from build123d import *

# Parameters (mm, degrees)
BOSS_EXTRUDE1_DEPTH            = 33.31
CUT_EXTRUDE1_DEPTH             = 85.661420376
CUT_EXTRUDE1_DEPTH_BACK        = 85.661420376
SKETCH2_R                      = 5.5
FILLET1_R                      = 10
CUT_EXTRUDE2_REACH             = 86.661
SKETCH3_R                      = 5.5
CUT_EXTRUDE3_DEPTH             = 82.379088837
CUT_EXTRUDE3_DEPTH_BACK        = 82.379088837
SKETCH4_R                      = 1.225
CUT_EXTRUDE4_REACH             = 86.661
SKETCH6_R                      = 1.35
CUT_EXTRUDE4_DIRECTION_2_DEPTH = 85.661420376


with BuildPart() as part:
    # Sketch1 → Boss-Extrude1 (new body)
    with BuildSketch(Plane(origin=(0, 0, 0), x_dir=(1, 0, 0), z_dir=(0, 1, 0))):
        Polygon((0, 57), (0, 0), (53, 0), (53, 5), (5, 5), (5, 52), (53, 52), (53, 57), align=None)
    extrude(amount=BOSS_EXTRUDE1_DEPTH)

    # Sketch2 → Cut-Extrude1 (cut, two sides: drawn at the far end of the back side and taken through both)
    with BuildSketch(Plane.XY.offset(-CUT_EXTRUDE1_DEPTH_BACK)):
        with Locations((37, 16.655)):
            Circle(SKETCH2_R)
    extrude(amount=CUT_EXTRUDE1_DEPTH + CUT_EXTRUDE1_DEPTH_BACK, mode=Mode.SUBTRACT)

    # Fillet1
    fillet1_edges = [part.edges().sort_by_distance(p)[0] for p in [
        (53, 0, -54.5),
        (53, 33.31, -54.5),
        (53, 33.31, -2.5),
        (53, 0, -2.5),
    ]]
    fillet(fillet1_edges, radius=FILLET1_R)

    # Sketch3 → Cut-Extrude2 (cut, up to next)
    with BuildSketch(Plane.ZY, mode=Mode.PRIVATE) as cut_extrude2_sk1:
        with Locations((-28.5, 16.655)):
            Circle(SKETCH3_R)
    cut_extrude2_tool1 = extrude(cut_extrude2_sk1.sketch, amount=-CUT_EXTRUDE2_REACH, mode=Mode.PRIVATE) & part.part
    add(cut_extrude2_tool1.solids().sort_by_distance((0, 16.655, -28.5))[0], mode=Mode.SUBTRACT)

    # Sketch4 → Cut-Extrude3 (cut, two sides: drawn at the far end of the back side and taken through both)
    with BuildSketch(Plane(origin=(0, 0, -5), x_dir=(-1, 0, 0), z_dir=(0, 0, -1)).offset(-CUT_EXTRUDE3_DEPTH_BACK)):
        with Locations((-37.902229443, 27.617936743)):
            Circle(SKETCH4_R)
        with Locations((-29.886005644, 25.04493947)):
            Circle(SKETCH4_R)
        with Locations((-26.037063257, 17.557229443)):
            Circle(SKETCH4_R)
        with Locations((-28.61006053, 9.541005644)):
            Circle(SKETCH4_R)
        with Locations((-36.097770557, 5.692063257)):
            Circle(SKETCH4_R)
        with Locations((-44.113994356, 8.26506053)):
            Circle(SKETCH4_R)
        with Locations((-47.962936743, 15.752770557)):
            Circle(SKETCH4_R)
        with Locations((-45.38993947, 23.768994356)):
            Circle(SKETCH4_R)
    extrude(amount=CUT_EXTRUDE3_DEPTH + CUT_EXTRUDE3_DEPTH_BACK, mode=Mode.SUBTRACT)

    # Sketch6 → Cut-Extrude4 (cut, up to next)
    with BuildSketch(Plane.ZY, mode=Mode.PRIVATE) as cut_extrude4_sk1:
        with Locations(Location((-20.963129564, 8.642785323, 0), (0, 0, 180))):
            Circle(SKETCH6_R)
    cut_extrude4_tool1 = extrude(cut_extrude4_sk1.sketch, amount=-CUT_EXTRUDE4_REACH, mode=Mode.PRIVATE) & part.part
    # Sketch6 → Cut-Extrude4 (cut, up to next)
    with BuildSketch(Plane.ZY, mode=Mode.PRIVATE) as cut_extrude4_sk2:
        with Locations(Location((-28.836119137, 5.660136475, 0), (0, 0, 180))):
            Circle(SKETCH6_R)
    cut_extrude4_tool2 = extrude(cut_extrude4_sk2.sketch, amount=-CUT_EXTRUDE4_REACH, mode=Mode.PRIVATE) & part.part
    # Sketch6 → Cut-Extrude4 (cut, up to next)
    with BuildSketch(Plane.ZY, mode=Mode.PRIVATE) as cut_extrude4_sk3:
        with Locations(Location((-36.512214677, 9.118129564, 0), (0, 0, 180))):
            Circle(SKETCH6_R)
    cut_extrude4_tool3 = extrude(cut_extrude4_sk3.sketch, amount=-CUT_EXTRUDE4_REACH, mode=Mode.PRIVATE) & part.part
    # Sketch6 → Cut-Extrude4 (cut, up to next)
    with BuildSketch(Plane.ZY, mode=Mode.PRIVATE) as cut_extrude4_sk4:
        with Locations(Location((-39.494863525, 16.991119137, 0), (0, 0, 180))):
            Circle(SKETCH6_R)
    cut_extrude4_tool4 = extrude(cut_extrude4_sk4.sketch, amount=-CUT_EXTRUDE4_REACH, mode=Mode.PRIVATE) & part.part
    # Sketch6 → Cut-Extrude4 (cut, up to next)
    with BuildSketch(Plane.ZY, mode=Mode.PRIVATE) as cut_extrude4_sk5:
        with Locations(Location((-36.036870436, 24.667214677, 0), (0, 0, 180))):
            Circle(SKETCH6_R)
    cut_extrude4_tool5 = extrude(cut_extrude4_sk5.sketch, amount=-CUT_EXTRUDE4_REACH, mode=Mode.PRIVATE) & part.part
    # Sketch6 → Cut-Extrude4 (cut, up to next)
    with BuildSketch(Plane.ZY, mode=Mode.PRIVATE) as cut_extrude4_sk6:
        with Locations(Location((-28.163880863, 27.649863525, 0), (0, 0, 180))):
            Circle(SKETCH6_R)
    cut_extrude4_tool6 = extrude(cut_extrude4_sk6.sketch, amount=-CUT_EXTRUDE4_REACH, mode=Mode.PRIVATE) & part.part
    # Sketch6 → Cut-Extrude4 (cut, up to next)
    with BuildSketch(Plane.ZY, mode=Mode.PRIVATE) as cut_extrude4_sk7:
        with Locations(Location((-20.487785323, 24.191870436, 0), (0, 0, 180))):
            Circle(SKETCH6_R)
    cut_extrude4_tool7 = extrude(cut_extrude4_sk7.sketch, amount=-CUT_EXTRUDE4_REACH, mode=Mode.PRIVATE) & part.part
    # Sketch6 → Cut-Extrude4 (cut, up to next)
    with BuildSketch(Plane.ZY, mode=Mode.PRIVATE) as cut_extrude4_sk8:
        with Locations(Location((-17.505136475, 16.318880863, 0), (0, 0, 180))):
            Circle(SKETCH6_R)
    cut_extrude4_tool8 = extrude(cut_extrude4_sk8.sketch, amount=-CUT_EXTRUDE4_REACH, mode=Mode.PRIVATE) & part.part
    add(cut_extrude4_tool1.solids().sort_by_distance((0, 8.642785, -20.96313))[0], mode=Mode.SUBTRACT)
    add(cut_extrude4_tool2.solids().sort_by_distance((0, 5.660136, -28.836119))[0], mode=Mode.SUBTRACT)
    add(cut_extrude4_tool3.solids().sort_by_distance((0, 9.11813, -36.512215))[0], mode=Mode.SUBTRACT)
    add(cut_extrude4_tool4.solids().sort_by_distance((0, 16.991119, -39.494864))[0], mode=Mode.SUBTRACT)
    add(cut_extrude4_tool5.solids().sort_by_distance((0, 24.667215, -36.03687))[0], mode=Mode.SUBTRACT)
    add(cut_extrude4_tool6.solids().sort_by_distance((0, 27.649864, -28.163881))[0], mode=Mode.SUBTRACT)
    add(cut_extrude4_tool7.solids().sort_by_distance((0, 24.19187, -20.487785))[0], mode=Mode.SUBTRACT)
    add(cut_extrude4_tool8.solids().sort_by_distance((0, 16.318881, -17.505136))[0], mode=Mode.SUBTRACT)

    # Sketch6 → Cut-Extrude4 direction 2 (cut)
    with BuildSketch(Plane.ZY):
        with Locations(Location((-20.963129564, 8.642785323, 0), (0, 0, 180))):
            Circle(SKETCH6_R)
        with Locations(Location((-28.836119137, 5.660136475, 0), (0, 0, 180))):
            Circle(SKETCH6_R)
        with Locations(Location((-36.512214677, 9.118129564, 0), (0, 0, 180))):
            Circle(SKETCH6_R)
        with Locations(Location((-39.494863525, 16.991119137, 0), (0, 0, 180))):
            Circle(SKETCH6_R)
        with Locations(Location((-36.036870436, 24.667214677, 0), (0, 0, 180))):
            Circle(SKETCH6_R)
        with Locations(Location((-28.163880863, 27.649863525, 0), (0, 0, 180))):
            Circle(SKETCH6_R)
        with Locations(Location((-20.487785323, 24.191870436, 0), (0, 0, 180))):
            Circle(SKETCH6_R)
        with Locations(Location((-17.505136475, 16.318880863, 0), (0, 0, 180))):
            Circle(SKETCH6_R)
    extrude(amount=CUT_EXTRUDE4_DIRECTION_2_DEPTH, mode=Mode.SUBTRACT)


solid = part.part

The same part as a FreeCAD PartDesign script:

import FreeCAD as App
import Part
import Sketcher

V = App.Vector


def edges_at(feature, points):
    """Names of the edges that pass closest to the given points."""
    edges = feature.Shape.Edges
    near = lambda p: min(range(len(edges)), key=lambda i: edges[i].distToShape(Part.Vertex(*p))[0])
    return sorted({f"Edge{near(p) + 1}" for p in points})

doc = App.newDocument("Part")
body = doc.addObject("PartDesign::Body", "Body")

sketch1 = body.newObject("Sketcher::SketchObject", "Sketch")
sketch1.AttachmentSupport = (doc.getObject("XZ_Plane"), [""])
sketch1.MapMode = "FlatFace"
sketch1.addGeometry([
    Part.LineSegment(V(0, -57, 0), V(0, 0, 0)),
    Part.LineSegment(V(0, 0, 0), V(53, 0, 0)),
    Part.LineSegment(V(53, 0, 0), V(53, -5, 0)),
    Part.LineSegment(V(53, -5, 0), V(5, -5, 0)),
    Part.LineSegment(V(5, -5, 0), V(5, -52, 0)),
    Part.LineSegment(V(5, -52, 0), V(53, -52, 0)),
    Part.LineSegment(V(53, -52, 0), V(53, -57, 0)),
    Part.LineSegment(V(53, -57, 0), V(0, -57, 0)),
], False)
sketch1.addConstraint([
    Sketcher.Constraint("Coincident", 0, 2, 1, 1),
    Sketcher.Constraint("Coincident", 1, 2, 2, 1),
    Sketcher.Constraint("Coincident", 2, 2, 3, 1),
    Sketcher.Constraint("Coincident", 3, 2, 4, 1),
    Sketcher.Constraint("Coincident", 4, 2, 5, 1),
    Sketcher.Constraint("Coincident", 5, 2, 6, 1),
    Sketcher.Constraint("Coincident", 6, 2, 7, 1),
    Sketcher.Constraint("Coincident", 7, 2, 0, 1),
    Sketcher.Constraint("Vertical", 0),
    Sketcher.Constraint("Horizontal", 1),
    Sketcher.Constraint("Vertical", 2),
    Sketcher.Constraint("Horizontal", 3),
    Sketcher.Constraint("Vertical", 4),
    Sketcher.Constraint("Horizontal", 5),
    Sketcher.Constraint("Vertical", 6),
    Sketcher.Constraint("Horizontal", 7),
    Sketcher.Constraint("Coincident", 0, 2, -1, 1),
    Sketcher.Constraint("Vertical", 2, 2, 5, 2),
    Sketcher.Constraint("Equal", 2, 6),
    Sketcher.Constraint("DistanceX", 1, 1, 1, 2, 53.0),
    Sketcher.Constraint("DistanceX", 3, 2, 3, 1, 48.0),
    Sketcher.Constraint("DistanceY", 0, 1, 0, 2, 57.0),
    Sketcher.Constraint("DistanceY", 2, 2, 2, 1, 5.0),
])
pad1 = body.newObject("PartDesign::Pad", "Pad")
pad1.Profile = sketch1
pad1.Length = 33.31
pad1.Reversed = True

sketch2 = body.newObject("Sketcher::SketchObject", "Sketch001")
sketch2.AttachmentSupport = (doc.getObject("XY_Plane"), [""])
sketch2.MapMode = "FlatFace"
sketch2.addGeometry(Part.Circle(V(37, 16.655, 0), V(0, 0, 1), 5.5), False)
sketch2.addConstraint([
    Sketcher.Constraint("Diameter", 0, 11.0),
    Sketcher.Constraint("DistanceX", -1, 1, 0, 3, 37.0),
    Sketcher.Constraint("DistanceY", -1, 1, 0, 3, 16.655),
])
pocket1 = body.newObject("PartDesign::Pocket", "Pocket")
pocket1.Profile = sketch2
pocket1.Type = "ThroughAll"
pocket1.Midplane = True
doc.recompute()

fillet = body.newObject("PartDesign::Fillet", "Fillet")
fillet.Base = (pocket1, edges_at(pocket1, [
    (53, 0, -54.5),
    (53, 33.31, -54.5),
    (53, 33.31, -2.5),
    (53, 0, -2.5),
]))
fillet.Radius = 10

sketch3 = body.newObject("Sketcher::SketchObject", "Sketch002")
sketch3.AttachmentSupport = (doc.getObject("YZ_Plane"), [""])
sketch3.MapMode = "FlatFace"
sketch3.addGeometry(Part.Circle(V(16.655, -28.5, 0), V(0, 0, 1), 5.5), False)
sketch3.addConstraint([
    Sketcher.Constraint("Diameter", 0, 11.0),
    Sketcher.Constraint("DistanceY", 0, 3, -1, 1, 28.5),
    Sketcher.Constraint("DistanceX", -1, 1, 0, 3, 16.655),
])
pocket2 = body.newObject("PartDesign::Pocket", "Pocket001")
pocket2.Profile = sketch3
pocket2.Type = "UpToFirst"
pocket2.Reversed = True

sketch4 = body.newObject("Sketcher::SketchObject", "Sketch003")
sketch4.AttachmentSupport = (doc.getObject("XY_Plane"), [""])
sketch4.MapMode = "FlatFace"
sketch4.AttachmentOffset = App.Placement(V(0, 0, -5), App.Rotation())
sketch4.addGeometry([
    Part.Circle(V(37.902229, 27.617937, 0), V(0, 0, 1), 1.225),
    Part.Circle(V(29.886006, 25.044939, 0), V(0, 0, 1), 1.225),
    Part.Circle(V(26.037063, 17.557229, 0), V(0, 0, 1), 1.225),
    Part.Circle(V(28.610061, 9.541006, 0), V(0, 0, 1), 1.225),
    Part.Circle(V(36.097771, 5.692063, 0), V(0, 0, 1), 1.225),
    Part.Circle(V(44.113994, 8.265061, 0), V(0, 0, 1), 1.225),
    Part.Circle(V(47.962937, 15.752771, 0), V(0, 0, 1), 1.225),
    Part.Circle(V(45.389939, 23.768994, 0), V(0, 0, 1), 1.225),
], False)
sketch4.addConstraint([
    Sketcher.Constraint("Equal", 0, 1),
    Sketcher.Constraint("Equal", 1, 2),
    Sketcher.Constraint("Equal", 2, 3),
    Sketcher.Constraint("Equal", 3, 4),
    Sketcher.Constraint("Equal", 4, 5),
    Sketcher.Constraint("Equal", 5, 6),
    Sketcher.Constraint("Equal", 6, 7),
    Sketcher.Constraint("Diameter", 0, 2.45),
    Sketcher.Constraint("DistanceX", -1, 1, 0, 3, 37.902229),
    Sketcher.Constraint("DistanceY", -1, 1, 1, 3, 25.044939),
    Sketcher.Constraint("DistanceY", -1, 1, 2, 3, 17.557229),
    Sketcher.Constraint("DistanceX", -1, 1, 3, 3, 28.610061),
    Sketcher.Constraint("DistanceX", -1, 1, 4, 3, 36.097771),
    Sketcher.Constraint("DistanceY", -1, 1, 5, 3, 8.265061),
    Sketcher.Constraint("DistanceY", -1, 1, 6, 3, 15.752771),
    Sketcher.Constraint("DistanceX", -1, 1, 7, 3, 45.389939),
    Sketcher.Constraint("DistanceY", 3, 3, 0, 3, 18.076931),
    Sketcher.Constraint("DistanceX", 2, 3, 5, 3, 18.076931),
    Sketcher.Constraint("DistanceX", 1, 3, 5, 3, 14.227989),
    Sketcher.Constraint("DistanceX", 1, 3, 6, 3, 18.076931),
    Sketcher.Constraint("DistanceY", -1, 1, 0, 3, 27.617937),
    Sketcher.Constraint("DistanceX", -1, 1, 1, 3, 29.886006),
    Sketcher.Constraint("DistanceY", -1, 1, 4, 3, 5.692063),
    Sketcher.Constraint("DistanceY", -1, 1, 7, 3, 23.768994),
])
pocket3 = body.newObject("PartDesign::Pocket", "Pocket002")
pocket3.Profile = sketch4
pocket3.Type = "ThroughAll"
pocket3.Midplane = True

sketch5 = body.newObject("Sketcher::SketchObject", "Sketch004")
sketch5.AttachmentSupport = (doc.getObject("YZ_Plane"), [""])
sketch5.MapMode = "FlatFace"
sketch5.addGeometry(Part.Circle(V(8.642785, -20.96313, 0), V(0, 0, 1), 1.35), False)
sketch5.addConstraint([
    Sketcher.Constraint("Diameter", 0, 2.7),
    Sketcher.Constraint("DistanceY", 0, 3, -1, 1, 20.96313),
    Sketcher.Constraint("DistanceX", -1, 1, 0, 3, 8.642785),
])
pocket4 = body.newObject("PartDesign::Pocket", "Pocket003")
pocket4.Profile = sketch5
pocket4.Type = "UpToFirst"
pocket4.Reversed = True

sketch6 = body.newObject("Sketcher::SketchObject", "Sketch005")
sketch6.AttachmentSupport = (doc.getObject("YZ_Plane"), [""])
sketch6.MapMode = "FlatFace"
sketch6.addGeometry(Part.Circle(V(5.660136, -28.836119, 0), V(0, 0, 1), 1.35), False)
sketch6.addConstraint([
    Sketcher.Constraint("Diameter", 0, 2.7),
    Sketcher.Constraint("DistanceY", 0, 3, -1, 1, 28.836119),
    Sketcher.Constraint("DistanceX", -1, 1, 0, 3, 5.660136),
])
pocket5 = body.newObject("PartDesign::Pocket", "Pocket004")
pocket5.Profile = sketch6
pocket5.Type = "UpToFirst"
pocket5.Reversed = True

sketch7 = body.newObject("Sketcher::SketchObject", "Sketch006")
sketch7.AttachmentSupport = (doc.getObject("YZ_Plane"), [""])
sketch7.MapMode = "FlatFace"
sketch7.addGeometry(Part.Circle(V(9.11813, -36.512215, 0), V(0, 0, 1), 1.35), False)
sketch7.addConstraint([
    Sketcher.Constraint("Diameter", 0, 2.7),
    Sketcher.Constraint("DistanceX", -1, 1, 0, 3, 9.11813),
    Sketcher.Constraint("DistanceY", 0, 3, -1, 1, 36.512215),
])
pocket6 = body.newObject("PartDesign::Pocket", "Pocket005")
pocket6.Profile = sketch7
pocket6.Type = "UpToFirst"
pocket6.Reversed = True

sketch8 = body.newObject("Sketcher::SketchObject", "Sketch007")
sketch8.AttachmentSupport = (doc.getObject("YZ_Plane"), [""])
sketch8.MapMode = "FlatFace"
sketch8.addGeometry(Part.Circle(V(16.991119, -39.494864, 0), V(0, 0, 1), 1.35), False)
sketch8.addConstraint([
    Sketcher.Constraint("Diameter", 0, 2.7),
    Sketcher.Constraint("DistanceX", -1, 1, 0, 3, 16.991119),
    Sketcher.Constraint("DistanceY", 0, 3, -1, 1, 39.494864),
])
pocket7 = body.newObject("PartDesign::Pocket", "Pocket006")
pocket7.Profile = sketch8
pocket7.Type = "UpToFirst"
pocket7.Reversed = True

sketch9 = body.newObject("Sketcher::SketchObject", "Sketch008")
sketch9.AttachmentSupport = (doc.getObject("YZ_Plane"), [""])
sketch9.MapMode = "FlatFace"
sketch9.addGeometry(Part.Circle(V(24.667215, -36.03687, 0), V(0, 0, 1), 1.35), False)
sketch9.addConstraint([
    Sketcher.Constraint("Diameter", 0, 2.7),
    Sketcher.Constraint("DistanceY", 0, 3, -1, 1, 36.03687),
    Sketcher.Constraint("DistanceX", -1, 1, 0, 3, 24.667215),
])
pocket8 = body.newObject("PartDesign::Pocket", "Pocket007")
pocket8.Profile = sketch9
pocket8.Type = "UpToFirst"
pocket8.Reversed = True

sketch10 = body.newObject("Sketcher::SketchObject", "Sketch009")
sketch10.AttachmentSupport = (doc.getObject("YZ_Plane"), [""])
sketch10.MapMode = "FlatFace"
sketch10.addGeometry(Part.Circle(V(27.649864, -28.163881, 0), V(0, 0, 1), 1.35), False)
sketch10.addConstraint([
    Sketcher.Constraint("Diameter", 0, 2.7),
    Sketcher.Constraint("DistanceY", 0, 3, -1, 1, 28.163881),
    Sketcher.Constraint("DistanceX", -1, 1, 0, 3, 27.649864),
])
pocket9 = body.newObject("PartDesign::Pocket", "Pocket008")
pocket9.Profile = sketch10
pocket9.Type = "UpToFirst"
pocket9.Reversed = True

sketch11 = body.newObject("Sketcher::SketchObject", "Sketch010")
sketch11.AttachmentSupport = (doc.getObject("YZ_Plane"), [""])
sketch11.MapMode = "FlatFace"
sketch11.addGeometry(Part.Circle(V(24.19187, -20.487785, 0), V(0, 0, 1), 1.35), False)
sketch11.addConstraint([
    Sketcher.Constraint("Diameter", 0, 2.7),
    Sketcher.Constraint("DistanceX", -1, 1, 0, 3, 24.19187),
    Sketcher.Constraint("DistanceY", 0, 3, -1, 1, 20.487785),
])
pocket10 = body.newObject("PartDesign::Pocket", "Pocket009")
pocket10.Profile = sketch11
pocket10.Type = "UpToFirst"
pocket10.Reversed = True

sketch12 = body.newObject("Sketcher::SketchObject", "Sketch011")
sketch12.AttachmentSupport = (doc.getObject("YZ_Plane"), [""])
sketch12.MapMode = "FlatFace"
sketch12.addGeometry(Part.Circle(V(16.318881, -17.505136, 0), V(0, 0, 1), 1.35), False)
sketch12.addConstraint([
    Sketcher.Constraint("Diameter", 0, 2.7),
    Sketcher.Constraint("DistanceX", -1, 1, 0, 3, 16.318881),
    Sketcher.Constraint("DistanceY", 0, 3, -1, 1, 17.505136),
])
pocket11 = body.newObject("PartDesign::Pocket", "Pocket010")
pocket11.Profile = sketch12
pocket11.Type = "UpToFirst"
pocket11.Reversed = True

sketch13 = body.newObject("Sketcher::SketchObject", "Sketch012")
sketch13.AttachmentSupport = (doc.getObject("YZ_Plane"), [""])
sketch13.MapMode = "FlatFace"
sketch13.addGeometry([
    Part.Circle(V(8.642785, -20.96313, 0), V(0, 0, 1), 1.35),
    Part.Circle(V(5.660136, -28.836119, 0), V(0, 0, 1), 1.35),
    Part.Circle(V(9.11813, -36.512215, 0), V(0, 0, 1), 1.35),
    Part.Circle(V(16.991119, -39.494864, 0), V(0, 0, 1), 1.35),
    Part.Circle(V(24.667215, -36.03687, 0), V(0, 0, 1), 1.35),
    Part.Circle(V(27.649864, -28.163881, 0), V(0, 0, 1), 1.35),
    Part.Circle(V(24.19187, -20.487785, 0), V(0, 0, 1), 1.35),
    Part.Circle(V(16.318881, -17.505136, 0), V(0, 0, 1), 1.35),
], False)
sketch13.addConstraint([
    Sketcher.Constraint("Equal", 0, 1),
    Sketcher.Constraint("Equal", 1, 2),
    Sketcher.Constraint("Equal", 2, 3),
    Sketcher.Constraint("Equal", 3, 4),
    Sketcher.Constraint("Equal", 4, 5),
    Sketcher.Constraint("Equal", 5, 6),
    Sketcher.Constraint("Equal", 6, 7),
    Sketcher.Constraint("Diameter", 0, 2.7),
    Sketcher.Constraint("DistanceY", 0, 3, -1, 1, 20.96313),
    Sketcher.Constraint("DistanceY", 1, 3, -1, 1, 28.836119),
    Sketcher.Constraint("DistanceX", -1, 1, 2, 3, 9.11813),
    Sketcher.Constraint("DistanceX", -1, 1, 3, 3, 16.991119),
    Sketcher.Constraint("DistanceY", 4, 3, -1, 1, 36.03687),
    Sketcher.Constraint("DistanceY", 5, 3, -1, 1, 28.163881),
    Sketcher.Constraint("DistanceX", -1, 1, 6, 3, 24.19187),
    Sketcher.Constraint("DistanceX", -1, 1, 7, 3, 16.318881),
    Sketcher.Constraint("DistanceX", 1, 3, 0, 3, 2.982649),
    Sketcher.Constraint("DistanceY", 3, 3, 2, 3, 2.982649),
    Sketcher.Constraint("DistanceX", 1, 3, 4, 3, 19.007078),
    Sketcher.Constraint("DistanceX", 4, 3, 5, 3, 2.982649),
    Sketcher.Constraint("DistanceY", 3, 3, 6, 3, 19.007078),
    Sketcher.Constraint("DistanceY", 6, 3, 7, 3, 2.982649),
    Sketcher.Constraint("DistanceX", -1, 1, 0, 3, 8.642785),
    Sketcher.Constraint("DistanceY", 2, 3, -1, 1, 36.512215),
])
pocket12 = body.newObject("PartDesign::Pocket", "Pocket011")
pocket12.Profile = sketch13
pocket12.Length = 85.66142

doc.recompute()
